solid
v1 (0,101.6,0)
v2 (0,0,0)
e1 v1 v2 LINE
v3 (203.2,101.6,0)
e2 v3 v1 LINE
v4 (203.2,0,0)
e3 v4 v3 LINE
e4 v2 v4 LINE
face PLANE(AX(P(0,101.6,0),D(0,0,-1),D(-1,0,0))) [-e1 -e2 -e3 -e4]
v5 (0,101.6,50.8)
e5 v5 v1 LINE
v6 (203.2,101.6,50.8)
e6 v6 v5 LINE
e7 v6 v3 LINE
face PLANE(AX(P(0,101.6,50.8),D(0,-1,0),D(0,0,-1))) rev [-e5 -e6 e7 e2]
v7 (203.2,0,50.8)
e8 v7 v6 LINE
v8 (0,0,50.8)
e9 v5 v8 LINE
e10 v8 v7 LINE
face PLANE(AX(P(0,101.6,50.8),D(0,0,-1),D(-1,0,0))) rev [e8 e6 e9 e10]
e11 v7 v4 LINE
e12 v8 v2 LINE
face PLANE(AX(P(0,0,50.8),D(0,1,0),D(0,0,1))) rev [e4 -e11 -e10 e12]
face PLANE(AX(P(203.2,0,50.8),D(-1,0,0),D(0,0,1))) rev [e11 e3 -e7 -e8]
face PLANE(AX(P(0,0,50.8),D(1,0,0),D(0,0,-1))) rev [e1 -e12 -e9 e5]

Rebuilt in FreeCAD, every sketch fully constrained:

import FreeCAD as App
import Part
import Sketcher

V = App.Vector
Q = App.Units.Quantity

doc = App.newDocument("Part")
body = doc.addObject("PartDesign::Body", "Body")

# Sketch on XY plane
sketch1 = body.newObject("Sketcher::SketchObject", "Sketch")
sketch1.AttachmentSupport = (doc.getObject("XY_Plane"), [""])
sketch1.MapMode = "FlatFace"
sketch1.addGeometry([
    Part.LineSegment(V(0, 102, 0), V(0, 0, 0)),
    Part.LineSegment(V(0, 0, 0), V(203, 0, 0)),
    Part.LineSegment(V(203, 0, 0), V(203, 102, 0)),
    Part.LineSegment(V(203, 102, 0), V(0, 102, 0)),
], False)
sketch1.addConstraint([
    Sketcher.Constraint("Coincident", 0, 2, 1, 1),
    Sketcher.Constraint("Coincident", 1, 2, 2, 1),
    Sketcher.Constraint("Coincident", 2, 2, 3, 1),
    Sketcher.Constraint("Coincident", 3, 2, 0, 1),
    Sketcher.Constraint("Vertical", 0),
    Sketcher.Constraint("Horizontal", 1),
    Sketcher.Constraint("Vertical", 2),
    Sketcher.Constraint("Horizontal", 3),
    Sketcher.Constraint("Coincident", 0, 2, -1, 1),
    Sketcher.Constraint("DistanceX", 1, 1, 1, 2, Q("8 in")),
    Sketcher.Constraint("DistanceY", 0, 2, 0, 1, Q("4 in")),
])
pad1 = body.newObject("PartDesign::Pad", "Pad")
pad1.Profile = sketch1
pad1.Length = Q("2 in")

doc.recompute()
